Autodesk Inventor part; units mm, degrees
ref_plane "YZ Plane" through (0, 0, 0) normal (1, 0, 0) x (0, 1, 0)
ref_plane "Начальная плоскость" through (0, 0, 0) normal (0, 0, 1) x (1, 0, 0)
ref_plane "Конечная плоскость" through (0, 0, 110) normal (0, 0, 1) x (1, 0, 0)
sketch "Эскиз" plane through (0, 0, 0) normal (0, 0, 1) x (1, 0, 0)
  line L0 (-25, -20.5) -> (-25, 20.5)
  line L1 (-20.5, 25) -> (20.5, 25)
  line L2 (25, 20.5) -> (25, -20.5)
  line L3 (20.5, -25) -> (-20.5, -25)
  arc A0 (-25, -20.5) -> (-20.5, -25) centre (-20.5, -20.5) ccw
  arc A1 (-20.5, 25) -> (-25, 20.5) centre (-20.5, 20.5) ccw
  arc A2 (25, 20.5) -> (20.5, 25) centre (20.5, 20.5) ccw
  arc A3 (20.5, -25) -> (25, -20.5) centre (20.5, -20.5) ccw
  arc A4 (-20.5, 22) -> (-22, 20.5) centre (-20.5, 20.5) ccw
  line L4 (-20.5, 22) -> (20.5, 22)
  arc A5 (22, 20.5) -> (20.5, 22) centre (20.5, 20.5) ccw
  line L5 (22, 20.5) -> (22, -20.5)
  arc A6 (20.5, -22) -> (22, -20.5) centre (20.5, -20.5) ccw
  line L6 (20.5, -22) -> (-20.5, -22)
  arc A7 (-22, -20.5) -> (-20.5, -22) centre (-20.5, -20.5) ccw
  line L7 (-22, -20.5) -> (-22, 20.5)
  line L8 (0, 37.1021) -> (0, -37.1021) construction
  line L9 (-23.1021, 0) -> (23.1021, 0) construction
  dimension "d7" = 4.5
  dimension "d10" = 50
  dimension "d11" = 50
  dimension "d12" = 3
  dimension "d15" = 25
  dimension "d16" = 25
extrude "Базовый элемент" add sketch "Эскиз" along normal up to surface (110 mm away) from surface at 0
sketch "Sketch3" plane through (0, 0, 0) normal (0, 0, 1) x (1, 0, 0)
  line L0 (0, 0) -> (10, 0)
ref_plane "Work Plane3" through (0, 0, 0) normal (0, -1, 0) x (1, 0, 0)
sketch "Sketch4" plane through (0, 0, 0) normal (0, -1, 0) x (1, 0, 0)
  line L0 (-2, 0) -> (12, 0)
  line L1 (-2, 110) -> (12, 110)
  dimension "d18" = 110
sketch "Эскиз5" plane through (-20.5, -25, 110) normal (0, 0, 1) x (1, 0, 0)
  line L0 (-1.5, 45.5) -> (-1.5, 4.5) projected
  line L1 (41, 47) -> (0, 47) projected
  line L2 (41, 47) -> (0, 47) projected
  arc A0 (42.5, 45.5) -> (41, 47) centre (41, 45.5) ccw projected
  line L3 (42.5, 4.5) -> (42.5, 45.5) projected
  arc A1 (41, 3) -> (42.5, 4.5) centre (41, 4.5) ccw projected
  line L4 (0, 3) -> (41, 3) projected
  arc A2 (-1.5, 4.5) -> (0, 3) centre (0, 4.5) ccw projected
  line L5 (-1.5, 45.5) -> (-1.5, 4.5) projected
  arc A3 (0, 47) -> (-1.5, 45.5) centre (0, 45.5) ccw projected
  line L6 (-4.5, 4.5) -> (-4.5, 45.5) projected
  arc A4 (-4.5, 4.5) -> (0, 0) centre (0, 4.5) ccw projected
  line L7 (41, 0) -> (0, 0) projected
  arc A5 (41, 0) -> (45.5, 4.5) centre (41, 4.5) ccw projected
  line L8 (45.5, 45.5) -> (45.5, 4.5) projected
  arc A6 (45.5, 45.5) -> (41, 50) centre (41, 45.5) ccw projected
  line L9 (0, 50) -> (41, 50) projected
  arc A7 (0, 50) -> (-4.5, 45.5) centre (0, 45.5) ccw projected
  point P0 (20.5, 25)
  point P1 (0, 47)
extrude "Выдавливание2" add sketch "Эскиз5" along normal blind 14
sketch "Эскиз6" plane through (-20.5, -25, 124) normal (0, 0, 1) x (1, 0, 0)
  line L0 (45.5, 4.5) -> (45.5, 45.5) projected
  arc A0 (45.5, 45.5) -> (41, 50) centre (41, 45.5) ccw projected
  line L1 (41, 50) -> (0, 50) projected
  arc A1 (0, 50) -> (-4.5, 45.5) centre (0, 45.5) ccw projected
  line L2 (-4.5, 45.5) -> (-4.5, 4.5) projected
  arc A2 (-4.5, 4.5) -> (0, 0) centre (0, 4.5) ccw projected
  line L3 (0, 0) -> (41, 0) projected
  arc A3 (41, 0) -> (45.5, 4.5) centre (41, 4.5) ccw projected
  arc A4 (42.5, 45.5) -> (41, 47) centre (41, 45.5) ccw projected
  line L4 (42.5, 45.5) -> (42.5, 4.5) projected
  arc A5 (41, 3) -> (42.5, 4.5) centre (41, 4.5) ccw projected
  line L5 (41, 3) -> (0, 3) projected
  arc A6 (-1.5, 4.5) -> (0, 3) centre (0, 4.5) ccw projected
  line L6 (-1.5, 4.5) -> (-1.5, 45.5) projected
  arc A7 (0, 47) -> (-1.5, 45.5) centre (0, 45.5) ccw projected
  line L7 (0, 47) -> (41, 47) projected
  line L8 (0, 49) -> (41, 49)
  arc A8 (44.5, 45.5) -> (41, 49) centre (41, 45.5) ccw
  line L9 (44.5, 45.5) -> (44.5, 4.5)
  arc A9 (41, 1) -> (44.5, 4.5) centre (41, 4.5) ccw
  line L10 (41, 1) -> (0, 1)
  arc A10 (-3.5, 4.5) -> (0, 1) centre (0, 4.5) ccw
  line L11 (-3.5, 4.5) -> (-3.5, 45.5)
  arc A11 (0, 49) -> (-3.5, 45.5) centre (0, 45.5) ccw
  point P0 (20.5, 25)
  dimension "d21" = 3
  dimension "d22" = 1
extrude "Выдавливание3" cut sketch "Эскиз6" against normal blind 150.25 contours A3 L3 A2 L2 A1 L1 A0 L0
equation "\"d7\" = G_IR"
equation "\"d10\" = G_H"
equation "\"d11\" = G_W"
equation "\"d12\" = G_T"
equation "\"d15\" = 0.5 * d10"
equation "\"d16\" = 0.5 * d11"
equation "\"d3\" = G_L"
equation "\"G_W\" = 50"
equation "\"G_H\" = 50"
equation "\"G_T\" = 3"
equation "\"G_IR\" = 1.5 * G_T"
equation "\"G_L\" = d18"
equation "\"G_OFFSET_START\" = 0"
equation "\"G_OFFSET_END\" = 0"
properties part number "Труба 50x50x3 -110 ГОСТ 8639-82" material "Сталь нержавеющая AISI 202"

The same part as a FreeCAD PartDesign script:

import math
import FreeCAD as App
import Part
import Sketcher
from FreeCAD import Vector
Q = App.Units.Quantity

doc = App.newDocument("Part")
body = doc.addObject("PartDesign::Body", "Body")

# Sketch on XY plane
sketch1 = body.newObject("Sketcher::SketchObject", "Sketch")
sketch1.AttachmentSupport = (doc.getObject("XY_Plane"), [""])
sketch1.MapMode = "FlatFace"
sketch1.addGeometry([
    Part.LineSegment(Vector(-25, 20.5, 0), Vector(-25, -20.5, 0)),  # 0
    Part.ArcOfCircle(Part.Circle(Vector(-20.5, -20.5, 0), Vector(0, 0, 1), 4.5), math.radians(180), math.radians(270)),  # 1
    Part.LineSegment(Vector(-20.5, -25, 0), Vector(20.5, -25, 0)),  # 2
    Part.ArcOfCircle(Part.Circle(Vector(20.5, -20.5, 0), Vector(0, 0, 1), 4.5), math.radians(-90), math.radians(0)),  # 3
    Part.LineSegment(Vector(25, -20.5, 0), Vector(25, 20.5, 0)),  # 4
    Part.ArcOfCircle(Part.Circle(Vector(20.5, 20.5, 0), Vector(0, 0, 1), 4.5), math.radians(0), math.radians(90)),  # 5
    Part.LineSegment(Vector(20.5, 25, 0), Vector(-20.5, 25, 0)),  # 6
    Part.ArcOfCircle(Part.Circle(Vector(-20.5, 20.5, 0), Vector(0, 0, 1), 4.5), math.radians(90), math.radians(180)),  # 7
    Part.ArcOfCircle(Part.Circle(Vector(-20.5, 20.5, 0), Vector(0, 0, 1), 1.5), math.radians(90), math.radians(180)),  # 8
    Part.LineSegment(Vector(-20.5, 22, 0), Vector(20.5, 22, 0)),  # 9
    Part.ArcOfCircle(Part.Circle(Vector(20.5, 20.5, 0), Vector(0, 0, 1), 1.5), math.radians(0), math.radians(90)),  # 10
    Part.LineSegment(Vector(22, 20.5, 0), Vector(22, -20.5, 0)),  # 11
    Part.ArcOfCircle(Part.Circle(Vector(20.5, -20.5, 0), Vector(0, 0, 1), 1.5), math.radians(-90), math.radians(0)),  # 12
    Part.LineSegment(Vector(20.5, -22, 0), Vector(-20.5, -22, 0)),  # 13
    Part.ArcOfCircle(Part.Circle(Vector(-20.5, -20.5, 0), Vector(0, 0, 1), 1.5), math.radians(180), math.radians(270)),  # 14
    Part.LineSegment(Vector(-22, -20.5, 0), Vector(-22, 20.5, 0)),  # 15
], False)
sketch1.addConstraint([
    Sketcher.Constraint("Tangent", 0, 2, 1, 1),
    Sketcher.Constraint("Tangent", 1, 2, 2, 1),
    Sketcher.Constraint("Tangent", 2, 2, 3, 1),
    Sketcher.Constraint("Tangent", 3, 2, 4, 1),
    Sketcher.Constraint("Tangent", 4, 2, 5, 1),
    Sketcher.Constraint("Tangent", 5, 2, 6, 1),
    Sketcher.Constraint("Tangent", 6, 2, 7, 1),
    Sketcher.Constraint("Tangent", 7, 2, 0, 1),
    Sketcher.Constraint("Tangent", 8, 1, 9, 1),
    Sketcher.Constraint("Tangent", 9, 2, 10, 2),
    Sketcher.Constraint("Tangent", 10, 1, 11, 1),
    Sketcher.Constraint("Tangent", 11, 2, 12, 2),
    Sketcher.Constraint("Tangent", 12, 1, 13, 1),
    Sketcher.Constraint("Tangent", 13, 2, 14, 2),
    Sketcher.Constraint("Tangent", 14, 1, 15, 1),
    Sketcher.Constraint("Tangent", 15, 2, 8, 2),
    Sketcher.Constraint("Vertical", 0),
    Sketcher.Constraint("Horizontal", 2),
    Sketcher.Constraint("Vertical", 4),
    Sketcher.Constraint("Horizontal", 6),
    Sketcher.Constraint("Horizontal", 9),
    Sketcher.Constraint("Vertical", 11),
    Sketcher.Constraint("Horizontal", 13),
    Sketcher.Constraint("Vertical", 15),
    Sketcher.Constraint("Coincident", 8, 3, 7, 3),
    Sketcher.Constraint("Coincident", 10, 3, 5, 3),
    Sketcher.Constraint("Coincident", 12, 3, 3, 3),
    Sketcher.Constraint("Equal", 1, 3),
    Sketcher.Constraint("Equal", 3, 5),
    Sketcher.Constraint("Equal", 5, 7),
    Sketcher.Constraint("Equal", 12, 14),
    Sketcher.Constraint("Symmetric", 1, 3, 5, 3, -1, 1),
    Sketcher.Constraint("Equal", 13, 0),
    Sketcher.Constraint("Radius", 1, Q("4.5 mm")),
    Sketcher.Constraint("Radius", 8, Q("1.5 mm")),
    Sketcher.Constraint("DistanceX", 0, 2, -1, 1, Q("25 mm")),
])
pad1 = body.newObject("PartDesign::Pad", "Pad")
pad1.Profile = sketch1
pad1.Length = 110

# Sketch on XY plane
sketch2 = body.newObject("Sketcher::SketchObject", "Sketch001")
sketch2.AttachmentSupport = (doc.getObject("XY_Plane"), [""])
sketch2.MapMode = "FlatFace"
sketch2.AttachmentOffset = App.Placement(Vector(0, 0, 110), App.Rotation())
sketch2.addGeometry([
    Part.LineSegment(Vector(-25, 20.5, 0), Vector(-25, -20.5, 0)),  # 0
    Part.ArcOfCircle(Part.Circle(Vector(-20.5, -20.5, 0), Vector(0, 0, 1), 4.5), math.radians(180), math.radians(270)),  # 1
    Part.LineSegment(Vector(-20.5, -25, 0), Vector(20.5, -25, 0)),  # 2
    Part.ArcOfCircle(Part.Circle(Vector(20.5, -20.5, 0), Vector(0, 0, 1), 4.5), math.radians(-90), math.radians(0)),  # 3
    Part.LineSegment(Vector(25, -20.5, 0), Vector(25, 20.5, 0)),  # 4
    Part.ArcOfCircle(Part.Circle(Vector(20.5, 20.5, 0), Vector(0, 0, 1), 4.5), math.radians(0), math.radians(90)),  # 5
    Part.LineSegment(Vector(20.5, 25, 0), Vector(-20.5, 25, 0)),  # 6
    Part.ArcOfCircle(Part.Circle(Vector(-20.5, 20.5, 0), Vector(0, 0, 1), 4.5), math.radians(90), math.radians(180)),  # 7
    Part.LineSegment(Vector(-22, -20.5, 0), Vector(-22, 20.5, 0)),  # 8
    Part.ArcOfCircle(Part.Circle(Vector(-20.5, 20.5, 0), Vector(0, 0, 1), 1.5), math.radians(90), math.radians(180)),  # 9
    Part.LineSegment(Vector(-20.5, 22, 0), Vector(20.5, 22, 0)),  # 10
    Part.ArcOfCircle(Part.Circle(Vector(20.5, 20.5, 0), Vector(0, 0, 1), 1.5), math.radians(0), math.radians(90)),  # 11
    Part.LineSegment(Vector(22, 20.5, 0), Vector(22, -20.5, 0)),  # 12
    Part.ArcOfCircle(Part.Circle(Vector(20.5, -20.5, 0), Vector(0, 0, 1), 1.5), math.radians(-90), math.radians(0)),  # 13
    Part.LineSegment(Vector(20.5, -22, 0), Vector(-20.5, -22, 0)),  # 14
    Part.ArcOfCircle(Part.Circle(Vector(-20.5, -20.5, 0), Vector(0, 0, 1), 1.5), math.radians(180), math.radians(270)),  # 15
], False)
sketch2.addConstraint([
    Sketcher.Constraint("Tangent", 0, 2, 1, 1),
    Sketcher.Constraint("Tangent", 1, 2, 2, 1),
    Sketcher.Constraint("Tangent", 2, 2, 3, 1),
    Sketcher.Constraint("Tangent", 3, 2, 4, 1),
    Sketcher.Constraint("Tangent", 4, 2, 5, 1),
    Sketcher.Constraint("Tangent", 5, 2, 6, 1),
    Sketcher.Constraint("Tangent", 6, 2, 7, 1),
    Sketcher.Constraint("Tangent", 7, 2, 0, 1),
    Sketcher.Constraint("Tangent", 8, 2, 9, 2),
    Sketcher.Constraint("Tangent", 9, 1, 10, 1),
    Sketcher.Constraint("Tangent", 10, 2, 11, 2),
    Sketcher.Constraint("Tangent", 11, 1, 12, 1),
    Sketcher.Constraint("Tangent", 12, 2, 13, 2),
    Sketcher.Constraint("Tangent", 13, 1, 14, 1),
    Sketcher.Constraint("Tangent", 14, 2, 15, 2),
    Sketcher.Constraint("Tangent", 15, 1, 8, 1),
    Sketcher.Constraint("Vertical", 0),
    Sketcher.Constraint("Horizontal", 2),
    Sketcher.Constraint("Vertical", 4),
    Sketcher.Constraint("Horizontal", 6),
    Sketcher.Constraint("Vertical", 8),
    Sketcher.Constraint("Horizontal", 10),
    Sketcher.Constraint("Vertical", 12),
    Sketcher.Constraint("Horizontal", 14),
    Sketcher.Constraint("Coincident", 9, 3, 7, 3),
    Sketcher.Constraint("Coincident", 11, 3, 5, 3),
    Sketcher.Constraint("Coincident", 13, 3, 3, 3),
    Sketcher.Constraint("Equal", 1, 3),
    Sketcher.Constraint("Equal", 3, 5),
    Sketcher.Constraint("Equal", 5, 7),
    Sketcher.Constraint("Equal", 13, 15),
    Sketcher.Constraint("Symmetric", 1, 3, 5, 3, -1, 1),
    Sketcher.Constraint("Equal", 14, 0),
    Sketcher.Constraint("Radius", 1, Q("4.5 mm")),
    Sketcher.Constraint("Radius", 9, Q("1.5 mm")),
    Sketcher.Constraint("DistanceX", 2, 1, 2, 2, Q("41 mm")),
])
pad2 = body.newObject("PartDesign::Pad", "Pad001")
pad2.Profile = sketch2
pad2.Length = 14

# Sketch on XY plane
sketch3 = body.newObject("Sketcher::SketchObject", "Sketch002")
sketch3.AttachmentSupport = (doc.getObject("XY_Plane"), [""])
sketch3.MapMode = "FlatFace"
sketch3.AttachmentOffset = App.Placement(Vector(0, 0, 124), App.Rotation())
sketch3.addGeometry([
    Part.ArcOfCircle(Part.Circle(Vector(20.5, -20.5, 0), Vector(0, 0, 1), 4.5), math.radians(-90), math.radians(0)),  # 0
    Part.LineSegment(Vector(25, -20.5, 0), Vector(25, 20.5, 0)),  # 1
    Part.ArcOfCircle(Part.Circle(Vector(20.5, 20.5, 0), Vector(0, 0, 1), 4.5), math.radians(0), math.radians(90)),  # 2
    Part.LineSegment(Vector(20.5, 25, 0), Vector(-20.5, 25, 0)),  # 3
    Part.ArcOfCircle(Part.Circle(Vector(-20.5, 20.5, 0), Vector(0, 0, 1), 4.5), math.radians(90), math.radians(180)),  # 4
    Part.LineSegment(Vector(-25, 20.5, 0), Vector(-25, -20.5, 0)),  # 5
    Part.ArcOfCircle(Part.Circle(Vector(-20.5, -20.5, 0), Vector(0, 0, 1), 4.5), math.radians(180), math.radians(270)),  # 6
    Part.LineSegment(Vector(-20.5, -25, 0), Vector(20.5, -25, 0)),  # 7
    Part.ArcOfCircle(Part.Circle(Vector(-20.5, 20.5, 0), Vector(0, 0, 1), 3.5), math.radians(90), math.radians(180)),  # 8
    Part.LineSegment(Vector(-20.5, 24, 0), Vector(20.5, 24, 0)),  # 9
    Part.ArcOfCircle(Part.Circle(Vector(20.5, 20.5, 0), Vector(0, 0, 1), 3.5), math.radians(0), math.radians(90)),  # 10
    Part.LineSegment(Vector(24, 20.5, 0), Vector(24, -20.5, 0)),  # 11
    Part.ArcOfCircle(Part.Circle(Vector(20.5, -20.5, 0), Vector(0, 0, 1), 3.5), math.radians(-90), math.radians(0)),  # 12
    Part.LineSegment(Vector(20.5, -24, 0), Vector(-20.5, -24, 0)),  # 13
    Part.ArcOfCircle(Part.Circle(Vector(-20.5, -20.5, 0), Vector(0, 0, 1), 3.5), math.radians(180), math.radians(270)),  # 14
    Part.LineSegment(Vector(-24, -20.5, 0), Vector(-24, 20.5, 0)),  # 15
], False)
sketch3.addConstraint([
    Sketcher.Constraint("Tangent", 0, 2, 1, 1),
    Sketcher.Constraint("Tangent", 1, 2, 2, 1),
    Sketcher.Constraint("Tangent", 2, 2, 3, 1),
    Sketcher.Constraint("Tangent", 3, 2, 4, 1),
    Sketcher.Constraint("Tangent", 4, 2, 5, 1),
    Sketcher.Constraint("Tangent", 5, 2, 6, 1),
    Sketcher.Constraint("Tangent", 6, 2, 7, 1),
    Sketcher.Constraint("Tangent", 7, 2, 0, 1),
    Sketcher.Constraint("Tangent", 8, 1, 9, 1),
    Sketcher.Constraint("Tangent", 9, 2, 10, 2),
    Sketcher.Constraint("Tangent", 10, 1, 11, 1),
    Sketcher.Constraint("Tangent", 11, 2, 12, 2),
    Sketcher.Constraint("Tangent", 12, 1, 13, 1),
    Sketcher.Constraint("Tangent", 13, 2, 14, 2),
    Sketcher.Constraint("Tangent", 14, 1, 15, 1),
    Sketcher.Constraint("Tangent", 15, 2, 8, 2),
    Sketcher.Constraint("Vertical", 1),
    Sketcher.Constraint("Horizontal", 3),
    Sketcher.Constraint("Vertical", 5),
    Sketcher.Constraint("Horizontal", 7),
    Sketcher.Constraint("Horizontal", 9),
    Sketcher.Constraint("Vertical", 11),
    Sketcher.Constraint("Horizontal", 13),
    Sketcher.Constraint("Vertical", 15),
    Sketcher.Constraint("Coincident", 8, 3, 4, 3),
    Sketcher.Constraint("Coincident", 10, 3, 2, 3),
    Sketcher.Constraint("Coincident", 12, 3, 0, 3),
    Sketcher.Constraint("Equal", 0, 2),
    Sketcher.Constraint("Equal", 2, 4),
    Sketcher.Constraint("Equal", 4, 6),
    Sketcher.Constraint("Equal", 12, 14),
    Sketcher.Constraint("Symmetric", 0, 3, 4, 3, -1, 1),
    Sketcher.Constraint("Equal", 13, 1),
    Sketcher.Constraint("DistanceY", 8, 1, 3, 2, Q("1 mm")),
    Sketcher.Constraint("Radius", 0, Q("4.5 mm")),
    Sketcher.Constraint("DistanceX", 3, 2, 3, 1, Q("41 mm")),
])
pocket1 = body.newObject("PartDesign::Pocket", "Pocket")
pocket1.Profile = sketch3
pocket1.Length = 150.25

doc.recompute()
